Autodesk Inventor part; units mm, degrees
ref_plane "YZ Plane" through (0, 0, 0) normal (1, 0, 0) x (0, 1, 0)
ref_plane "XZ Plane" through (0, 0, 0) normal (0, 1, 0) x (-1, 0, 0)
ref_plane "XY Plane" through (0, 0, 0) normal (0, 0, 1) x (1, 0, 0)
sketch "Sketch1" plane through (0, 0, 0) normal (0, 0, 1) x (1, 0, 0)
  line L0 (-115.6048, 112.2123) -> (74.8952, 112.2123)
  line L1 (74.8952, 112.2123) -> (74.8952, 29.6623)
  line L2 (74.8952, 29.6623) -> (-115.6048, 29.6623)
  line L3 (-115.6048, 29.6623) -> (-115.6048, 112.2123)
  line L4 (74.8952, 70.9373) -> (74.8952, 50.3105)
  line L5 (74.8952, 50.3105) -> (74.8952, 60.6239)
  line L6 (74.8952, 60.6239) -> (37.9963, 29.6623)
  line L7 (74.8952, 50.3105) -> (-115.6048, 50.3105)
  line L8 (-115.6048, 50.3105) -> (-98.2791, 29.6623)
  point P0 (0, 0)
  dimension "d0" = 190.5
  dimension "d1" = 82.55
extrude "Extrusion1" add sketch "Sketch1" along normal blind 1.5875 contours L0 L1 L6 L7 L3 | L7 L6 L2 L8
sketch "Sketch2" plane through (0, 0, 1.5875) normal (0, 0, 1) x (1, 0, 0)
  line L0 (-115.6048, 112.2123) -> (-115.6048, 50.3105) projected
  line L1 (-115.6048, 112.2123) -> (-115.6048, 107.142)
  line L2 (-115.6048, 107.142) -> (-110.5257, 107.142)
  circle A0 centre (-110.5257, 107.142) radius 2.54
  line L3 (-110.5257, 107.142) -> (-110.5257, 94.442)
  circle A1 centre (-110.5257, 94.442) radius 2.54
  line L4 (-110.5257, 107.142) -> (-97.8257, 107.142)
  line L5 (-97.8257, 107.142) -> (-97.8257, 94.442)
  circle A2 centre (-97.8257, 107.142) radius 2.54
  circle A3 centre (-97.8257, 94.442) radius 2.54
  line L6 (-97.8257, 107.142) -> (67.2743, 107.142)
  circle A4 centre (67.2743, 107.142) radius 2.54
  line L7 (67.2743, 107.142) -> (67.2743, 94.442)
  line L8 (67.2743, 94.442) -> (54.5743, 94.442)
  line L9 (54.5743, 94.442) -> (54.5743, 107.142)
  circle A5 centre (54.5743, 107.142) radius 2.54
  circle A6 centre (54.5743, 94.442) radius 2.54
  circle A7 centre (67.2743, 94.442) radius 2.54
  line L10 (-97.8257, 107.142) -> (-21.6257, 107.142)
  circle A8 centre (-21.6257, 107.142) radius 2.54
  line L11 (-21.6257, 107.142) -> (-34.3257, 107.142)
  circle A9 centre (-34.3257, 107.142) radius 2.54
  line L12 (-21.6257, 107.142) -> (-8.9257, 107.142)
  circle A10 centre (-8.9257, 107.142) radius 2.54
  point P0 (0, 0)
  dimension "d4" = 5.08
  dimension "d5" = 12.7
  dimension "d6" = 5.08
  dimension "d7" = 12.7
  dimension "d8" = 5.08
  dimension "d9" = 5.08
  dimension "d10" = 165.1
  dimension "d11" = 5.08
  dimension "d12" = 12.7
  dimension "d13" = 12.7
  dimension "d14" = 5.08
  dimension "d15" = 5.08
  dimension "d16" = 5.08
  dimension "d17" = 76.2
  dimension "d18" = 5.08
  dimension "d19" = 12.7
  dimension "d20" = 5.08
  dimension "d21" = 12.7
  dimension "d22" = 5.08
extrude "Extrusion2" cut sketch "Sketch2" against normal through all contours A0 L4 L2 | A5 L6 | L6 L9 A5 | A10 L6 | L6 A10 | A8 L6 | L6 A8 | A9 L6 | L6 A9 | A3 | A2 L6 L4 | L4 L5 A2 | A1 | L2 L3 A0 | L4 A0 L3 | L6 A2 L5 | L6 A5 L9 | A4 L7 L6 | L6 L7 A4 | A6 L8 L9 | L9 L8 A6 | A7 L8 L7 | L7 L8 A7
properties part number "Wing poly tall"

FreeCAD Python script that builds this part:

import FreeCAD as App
import Part
import Sketcher
from FreeCAD import Vector
Q = App.Units.Quantity


def add_polygon(sketch, points):
    """Adds a closed chain of lines whose ends are joined by coincident constraints."""
    first, n = sketch.GeometryCount, len(points)
    for a, b in zip(points, points[1:] + points[:1]):
        sketch.addGeometry(Part.LineSegment(App.Vector(*a, 0), App.Vector(*b, 0)), False)
    for i in range(n):
        sketch.addConstraint(Sketcher.Constraint("Coincident", first + i, 2, first + (i + 1) % n, 1))

doc = App.newDocument("Part")
params = doc.addObject("Spreadsheet::Sheet", "Params")
for row, (alias, value) in enumerate([
    ("sketch1_width", "7.5 in"),
    ("pad1_length", "0.0625 in"),
    ("sketch2_diameter", "0.2 in"),
], start=1):
    params.set(f"A{row}", alias)
    params.set(f"B{row}", "=" + value)
    params.setAlias(f"B{row}", alias)

body = doc.addObject("PartDesign::Body", "Body")

sketch1 = body.newObject("Sketcher::SketchObject", "Sketch")
sketch1.AttachmentSupport = (doc.getObject("XY_Plane"), [""])
sketch1.MapMode = "FlatFace"
add_polygon(sketch1, [(75, 112), (-116, 112), (-116, 50), (-98, 30), (38, 30), (75, 61)])
sketch1.addConstraint(Sketcher.Constraint("Horizontal", 0))
sketch1.addConstraint(Sketcher.Constraint("Vertical", 1))
sketch1.addConstraint(Sketcher.Constraint("Horizontal", 3))
sketch1.addConstraint(Sketcher.Constraint("Vertical", 5))
sketch1.addConstraint(Sketcher.Constraint("Perpendicular", 2, 4))
sketch1.addConstraint(Sketcher.Constraint("DistanceX", 0, 2, 0, 1, Q("7.5 in")))
sketch1.addConstraint(Sketcher.Constraint("DistanceY", 2, 2, 0, 2, Q("3.25 in")))
sketch1.addConstraint(Sketcher.Constraint("Angle", 2, Q("-50.0003 deg")))
sketch1.addConstraint(Sketcher.Constraint("Distance", 2, Q("1.0612 in")))
sketch1.addConstraint(Sketcher.Constraint("DistanceX", 3, 1, 3, 2, 136.2754))
sketch1.addConstraint(Sketcher.Constraint("DistanceY", -1, 1, 0, 2, Q("4.4178 in")))
sketch1.addConstraint(Sketcher.Constraint("DistanceX", 0, 2, -1, 1, 115.6048))
sketch1.setExpression("Constraints[11]", "Params.sketch1_width")
pad1 = body.newObject("PartDesign::Pad", "Pad")
pad1.Profile = sketch1
pad1.setExpression("Length", "Params.pad1_length")

sketch2 = body.newObject("Sketcher::SketchObject", "Sketch001")
sketch2.AttachmentSupport = (doc.getObject("XY_Plane"), [""])
sketch2.MapMode = "FlatFace"
sketch2.AttachmentOffset = App.Placement(Vector(0, 0, 0.0625 * 25.4), App.Rotation())
sketch2.addGeometry(Part.Circle(Vector(-110.5, 107.1, 0), Vector(0, 0, 1), 2.5), False)
sketch2.addGeometry(Part.Circle(Vector(54.6, 107.1, 0), Vector(0, 0, 1), 2.5), False)
sketch2.addGeometry(Part.Circle(Vector(-8.9, 107.1, 0), Vector(0, 0, 1), 2.5), False)
sketch2.addGeometry(Part.Circle(Vector(-21.6, 107.1, 0), Vector(0, 0, 1), 2.5), False)
sketch2.addGeometry(Part.Circle(Vector(-34.3, 107.1, 0), Vector(0, 0, 1), 2.5), False)
sketch2.addGeometry(Part.Circle(Vector(-97.8, 94.4, 0), Vector(0, 0, 1), 2.5), False)
sketch2.addGeometry(Part.Circle(Vector(-97.8, 107.1, 0), Vector(0, 0, 1), 2.5), False)
sketch2.addGeometry(Part.Circle(Vector(-110.5, 94.4, 0), Vector(0, 0, 1), 2.5), False)
sketch2.addGeometry(Part.Circle(Vector(67.3, 107.1, 0), Vector(0, 0, 1), 2.5), False)
sketch2.addGeometry(Part.Circle(Vector(54.6, 94.4, 0), Vector(0, 0, 1), 2.5), False)
sketch2.addGeometry(Part.Circle(Vector(67.3, 94.4, 0), Vector(0, 0, 1), 2.5), False)
sketch2.addConstraint(Sketcher.Constraint("Equal", 0, 1))
sketch2.addConstraint(Sketcher.Constraint("Equal", 1, 2))
sketch2.addConstraint(Sketcher.Constraint("Equal", 2, 3))
sketch2.addConstraint(Sketcher.Constraint("Equal", 3, 4))
sketch2.addConstraint(Sketcher.Constraint("Equal", 4, 5))
sketch2.addConstraint(Sketcher.Constraint("Equal", 5, 6))
sketch2.addConstraint(Sketcher.Constraint("Equal", 6, 7))
sketch2.addConstraint(Sketcher.Constraint("Equal", 7, 8))
sketch2.addConstraint(Sketcher.Constraint("Equal", 8, 9))
sketch2.addConstraint(Sketcher.Constraint("Equal", 9, 10))
sketch2.addConstraint(Sketcher.Constraint("Horizontal", 0, 3, 1, 3))
sketch2.addConstraint(Sketcher.Constraint("Horizontal", 1, 3, 2, 3))
sketch2.addConstraint(Sketcher.Constraint("Horizontal", 2, 3, 3, 3))
sketch2.addConstraint(Sketcher.Constraint("Horizontal", 3, 3, 4, 3))
sketch2.addConstraint(Sketcher.Constraint("Horizontal", 4, 3, 6, 3))
sketch2.addConstraint(Sketcher.Constraint("Horizontal", 5, 3, 7, 3))
sketch2.addConstraint(Sketcher.Constraint("Horizontal", 6, 3, 8, 3))
sketch2.addConstraint(Sketcher.Constraint("Horizontal", 7, 3, 9, 3))
sketch2.addConstraint(Sketcher.Constraint("Horizontal", 9, 3, 10, 3))
sketch2.addConstraint(Sketcher.Constraint("Vertical", 5, 3, 6, 3))
sketch2.addConstraint(Sketcher.Constraint("Vertical", 0, 3, 7, 3))
sketch2.addConstraint(Sketcher.Constraint("Vertical", 1, 3, 9, 3))
sketch2.addConstraint(Sketcher.Constraint("Vertical", 8, 3, 10, 3))
sketch2.addConstraint(Sketcher.Constraint("Diameter", 0, Q("0.2 in")))
sketch2.addConstraint(Sketcher.Constraint("DistanceX", 3, 3, 1, 3, Q("3 in")))
sketch2.addConstraint(Sketcher.Constraint("DistanceX", 0, 3, 4, 3, Q("3 in")))
sketch2.addConstraint(Sketcher.Constraint("DistanceX", 5, 3, 3, 3, Q("3 in")))
sketch2.addConstraint(Sketcher.Constraint("DistanceX", 2, 3, 8, 3, Q("3 in")))
sketch2.addConstraint(Sketcher.Constraint("DistanceX", 0, 3, 1, 3, Q("6.5 in")))
sketch2.addConstraint(Sketcher.Constraint("DistanceX", 3, 3, 2, 3, Q("0.5 in")))
sketch2.addConstraint(Sketcher.Constraint("DistanceY", 5, 3, 0, 3, Q("0.5 in")))
sketch2.addConstraint(Sketcher.Constraint("DistanceX", 0, 3, -1, 1, Q("4.3514 in")))
sketch2.addConstraint(Sketcher.Constraint("DistanceY", -1, 1, 0, 3, Q("4.2182 in")))
sketch2.setExpression("Constraints[23]", "Params.sketch2_diameter")
pocket1 = body.newObject("PartDesign::Pocket", "Pocket")
pocket1.Profile = sketch2
pocket1.Type = "ThroughAll"

doc.recompute()
